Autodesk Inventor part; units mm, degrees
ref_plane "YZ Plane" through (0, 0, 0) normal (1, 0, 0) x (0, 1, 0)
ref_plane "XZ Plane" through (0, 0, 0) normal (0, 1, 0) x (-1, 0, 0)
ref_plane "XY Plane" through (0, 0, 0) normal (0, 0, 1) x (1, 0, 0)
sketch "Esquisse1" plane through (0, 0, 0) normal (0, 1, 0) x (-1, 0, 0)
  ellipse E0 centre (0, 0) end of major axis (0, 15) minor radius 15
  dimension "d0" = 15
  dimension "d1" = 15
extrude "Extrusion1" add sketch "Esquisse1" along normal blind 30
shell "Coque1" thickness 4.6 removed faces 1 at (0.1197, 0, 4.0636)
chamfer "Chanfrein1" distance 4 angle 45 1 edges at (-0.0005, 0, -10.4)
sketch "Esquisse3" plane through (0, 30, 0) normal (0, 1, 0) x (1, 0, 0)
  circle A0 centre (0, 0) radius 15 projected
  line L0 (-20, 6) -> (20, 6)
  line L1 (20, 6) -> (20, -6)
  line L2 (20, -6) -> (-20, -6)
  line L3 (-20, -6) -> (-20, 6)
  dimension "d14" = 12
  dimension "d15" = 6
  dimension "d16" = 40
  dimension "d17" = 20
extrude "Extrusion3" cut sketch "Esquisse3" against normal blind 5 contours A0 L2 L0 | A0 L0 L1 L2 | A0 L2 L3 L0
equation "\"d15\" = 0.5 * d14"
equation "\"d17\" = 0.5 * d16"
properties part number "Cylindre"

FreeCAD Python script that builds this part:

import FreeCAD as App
import Part
import Sketcher
Q = App.Units.Quantity


def edges_at(feature, points):
    """Names of the edges that pass closest to the given points."""
    edges = feature.Shape.Edges
    near = lambda p: min(range(len(edges)), key=lambda i: edges[i].distToShape(Part.Vertex(*p))[0])
    return sorted({f"Edge{near(p) + 1}" for p in points})


def faces_at(feature, points):
    """Names of the faces that lie closest to the given points."""
    faces = feature.Shape.Faces
    near = lambda p: min(range(len(faces)), key=lambda i: faces[i].distToShape(Part.Vertex(*p))[0])
    return sorted({f"Face{near(p) + 1}" for p in points})

doc = App.newDocument("Part")
body = doc.addObject("PartDesign::Body", "Body")

sketch1 = body.newObject("Sketcher::SketchObject", "Sketch")
sketch1.AttachmentSupport = (doc.getObject("XZ_Plane"), [""])
sketch1.MapMode = "FlatFace"
sketch1.addGeometry(Part.Ellipse(App.Vector(0, 15, 0), App.Vector(-15, 0, 0), App.Vector(0, 0, 0)), False)
sketch1.addConstraint(Sketcher.Constraint("Block", 0))
pad1 = body.newObject("PartDesign::Pad", "Pad")
pad1.Profile = sketch1
pad1.Length = 30
pad1.Reversed = True
doc.recompute()

thickness = body.newObject("PartDesign::Thickness", "Thickness")
thickness.Base = (pad1, faces_at(pad1, [(0.12, 0, 4.064)]))
thickness.Value = 4.6
thickness.Reversed = True
thickness.Join = "Intersection"
doc.recompute()

chamfer = body.newObject("PartDesign::Chamfer", "Chamfer")
chamfer.Base = (thickness, edges_at(thickness, [(-0.001, 0, -10.4)]))
chamfer.Size = 4

sketch2 = body.newObject("Sketcher::SketchObject", "Sketch001")
sketch2.AttachmentSupport = (doc.getObject("XZ_Plane"), [""])
sketch2.MapMode = "FlatFace"
sketch2.AttachmentOffset = App.Placement(App.Vector(0, 0, -30), App.Rotation())
sketch2.addGeometry([
    Part.LineSegment(App.Vector(20, 6, 0), App.Vector(20, -6, 0)),
    Part.LineSegment(App.Vector(20, -6, 0), App.Vector(-20, -6, 0)),
    Part.LineSegment(App.Vector(-20, -6, 0), App.Vector(-20, 6, 0)),
    Part.LineSegment(App.Vector(-20, 6, 0), App.Vector(20, 6, 0)),
], False)
sketch2.addConstraint([
    Sketcher.Constraint("Coincident", 0, 2, 1, 1),
    Sketcher.Constraint("Coincident", 1, 2, 2, 1),
    Sketcher.Constraint("Coincident", 2, 2, 3, 1),
    Sketcher.Constraint("Coincident", 3, 2, 0, 1),
    Sketcher.Constraint("Vertical", 0),
    Sketcher.Constraint("Horizontal", 1),
    Sketcher.Constraint("Vertical", 2),
    Sketcher.Constraint("Horizontal", 3),
    Sketcher.Constraint("Symmetric", 0, 2, 2, 2, -1, 1),
    Sketcher.Constraint("DistanceX", 1, 2, 1, 1, Q("40 mm")),
    Sketcher.Constraint("DistanceY", 0, 2, 0, 1, Q("12 mm")),
])
pocket1 = body.newObject("PartDesign::Pocket", "Pocket")
pocket1.Profile = sketch2
pocket1.Length = 5
pocket1.Reversed = True

doc.recompute()
